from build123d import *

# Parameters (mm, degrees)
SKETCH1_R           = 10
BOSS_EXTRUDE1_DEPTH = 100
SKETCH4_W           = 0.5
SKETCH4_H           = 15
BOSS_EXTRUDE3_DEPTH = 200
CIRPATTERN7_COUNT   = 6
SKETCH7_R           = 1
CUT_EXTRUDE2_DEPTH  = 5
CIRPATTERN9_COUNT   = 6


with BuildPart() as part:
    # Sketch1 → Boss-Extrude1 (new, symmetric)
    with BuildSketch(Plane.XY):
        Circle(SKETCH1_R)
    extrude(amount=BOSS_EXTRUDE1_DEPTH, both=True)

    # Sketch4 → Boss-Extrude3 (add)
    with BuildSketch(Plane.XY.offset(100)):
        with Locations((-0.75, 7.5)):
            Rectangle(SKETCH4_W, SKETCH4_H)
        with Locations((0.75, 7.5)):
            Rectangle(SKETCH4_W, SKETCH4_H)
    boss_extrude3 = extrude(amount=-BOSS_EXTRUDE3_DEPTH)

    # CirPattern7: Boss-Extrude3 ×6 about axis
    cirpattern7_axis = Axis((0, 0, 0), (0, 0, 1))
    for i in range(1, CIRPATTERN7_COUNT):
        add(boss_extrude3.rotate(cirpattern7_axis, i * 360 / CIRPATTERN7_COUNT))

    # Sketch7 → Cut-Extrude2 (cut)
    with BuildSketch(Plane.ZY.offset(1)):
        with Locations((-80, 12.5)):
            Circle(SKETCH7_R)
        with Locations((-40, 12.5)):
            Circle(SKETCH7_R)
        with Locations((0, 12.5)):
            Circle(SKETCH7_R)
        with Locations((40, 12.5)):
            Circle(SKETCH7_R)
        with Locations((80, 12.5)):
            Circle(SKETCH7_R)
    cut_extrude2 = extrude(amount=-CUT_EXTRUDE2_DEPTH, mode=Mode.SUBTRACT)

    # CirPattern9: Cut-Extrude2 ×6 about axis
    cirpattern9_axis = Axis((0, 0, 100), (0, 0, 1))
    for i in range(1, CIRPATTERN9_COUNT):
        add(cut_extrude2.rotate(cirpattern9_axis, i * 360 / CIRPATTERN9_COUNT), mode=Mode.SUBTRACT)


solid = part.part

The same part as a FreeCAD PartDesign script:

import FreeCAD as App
import Part
import Sketcher
from FreeCAD import Vector


def add_polygon(sketch, points):
    """Adds a closed chain of lines whose ends are joined by coincident constraints."""
    first, n = sketch.GeometryCount, len(points)
    for a, b in zip(points, points[1:] + points[:1]):
        sketch.addGeometry(Part.LineSegment(App.Vector(*a, 0), App.Vector(*b, 0)), False)
    for i in range(n):
        sketch.addConstraint(Sketcher.Constraint("Coincident", first + i, 2, first + (i + 1) % n, 1))

doc = App.newDocument("Part")
params = doc.addObject("Spreadsheet::Sheet", "Params")
for row, (alias, value) in enumerate([
    ("sketch1_diameter", "20 mm"),
    ("pad1_length", "200 mm"),
    ("sketch2_height", "15 mm"),
    ("sketch2_width", "0.5 mm"),
    ("pad2_length", "200 mm"),
    ("sketch3_diameter", "2 mm"),
    ("pocket1_length", "5 mm"),
], start=1):
    params.set(f"A{row}", alias)
    params.set(f"B{row}", "=" + value)
    params.setAlias(f"B{row}", alias)

body = doc.addObject("PartDesign::Body", "Body")

# Sketch on XY plane
sketch1 = doc.addObject("Sketcher::SketchObject", "Sketch")
body.addObject(sketch1)
sketch1.AttachmentSupport = (doc.XY_Plane, [""])
sketch1.MapMode = "FlatFace"
sketch1.addGeometry(Part.Circle(Vector(0, 0, 0), Vector(0, 0, 1), 10), False)
sketch1.addConstraint(Sketcher.Constraint("Coincident", 0, 3, -1, 1))
sketch1.addConstraint(Sketcher.Constraint("Diameter", 0, 20.0))
sketch1.setExpression("Constraints[1]", "Params.sketch1_diameter")
pad1 = doc.addObject("PartDesign::Pad", "Pad")
body.addObject(pad1)
pad1.Profile = sketch1
pad1.setExpression("Length", "Params.pad1_length")
pad1.Midplane = True

# Sketch on XY plane
sketch2 = doc.addObject("Sketcher::SketchObject", "Sketch001")
body.addObject(sketch2)
sketch2.AttachmentSupport = (doc.XY_Plane, [""])
sketch2.MapMode = "FlatFace"
sketch2.AttachmentOffset = App.Placement(Vector(0, 0, 100), App.Rotation())
add_polygon(sketch2, [(-1, 15), (-1, 0), (-0.5, 0), (-0.5, 15)])  # lines 0-3
add_polygon(sketch2, [(0.5, 15), (0.5, 0), (1, 0), (1, 15)])  # lines 4-7
sketch2.addConstraint(Sketcher.Constraint("Vertical", 0))
sketch2.addConstraint(Sketcher.Constraint("Horizontal", 1))
sketch2.addConstraint(Sketcher.Constraint("Vertical", 2))
sketch2.addConstraint(Sketcher.Constraint("Horizontal", 3))
sketch2.addConstraint(Sketcher.Constraint("Vertical", 4))
sketch2.addConstraint(Sketcher.Constraint("Horizontal", 5))
sketch2.addConstraint(Sketcher.Constraint("Vertical", 6))
sketch2.addConstraint(Sketcher.Constraint("Horizontal", 7))
sketch2.addConstraint(Sketcher.Constraint("Symmetric", 1, 2, 4, 2, -1, 1))
sketch2.addConstraint(Sketcher.Constraint("Symmetric", 0, 2, 5, 2, -2))
sketch2.addConstraint(Sketcher.Constraint("Horizontal", 3, 2, 6, 2))
sketch2.addConstraint(Sketcher.Constraint("DistanceY", 0, 2, 0, 1, 15.0))
sketch2.addConstraint(Sketcher.Constraint("DistanceX", 1, 1, 1, 2, 0.5))
sketch2.addConstraint(Sketcher.Constraint("DistanceX", 0, 2, -1, 1, 1.0))
sketch2.setExpression("Constraints[19]", "Params.sketch2_height")
sketch2.setExpression("Constraints[20]", "Params.sketch2_width")
pad2 = doc.addObject("PartDesign::Pad", "Pad001")
body.addObject(pad2)
pad2.Profile = sketch2
pad2.setExpression("Length", "Params.pad2_length")
pad2.Reversed = True
doc.recompute()

polarpattern = doc.addObject("PartDesign::PolarPattern", "PolarPattern")
body.addObject(polarpattern)
polarpattern.Originals = [pad2]
polarpattern.Axis = (doc.Z_Axis, [""])
polarpattern.Angle = 360
polarpattern.Occurrences = 6
body.Tip = polarpattern

# Sketch on YZ plane
sketch3 = doc.addObject("Sketcher::SketchObject", "Sketch002")
body.addObject(sketch3)
sketch3.AttachmentSupport = (doc.YZ_Plane, [""])
sketch3.MapMode = "FlatFace"
sketch3.AttachmentOffset = App.Placement(Vector(0, 0, -1), App.Rotation())
sketch3.addGeometry(Part.Circle(Vector(12.5, -80, 0), Vector(0, 0, 1), 1), False)
sketch3.addGeometry(Part.Circle(Vector(12.5, -40, 0), Vector(0, 0, 1), 1), False)
sketch3.addGeometry(Part.Circle(Vector(12.5, 0, 0), Vector(0, 0, 1), 1), False)
sketch3.addGeometry(Part.Circle(Vector(12.5, 40, 0), Vector(0, 0, 1), 1), False)
sketch3.addGeometry(Part.Circle(Vector(12.5, 80, 0), Vector(0, 0, 1), 1), False)
sketch3.addConstraint(Sketcher.Constraint("Equal", 0, 1))
sketch3.addConstraint(Sketcher.Constraint("Equal", 1, 2))
sketch3.addConstraint(Sketcher.Constraint("Equal", 2, 3))
sketch3.addConstraint(Sketcher.Constraint("Equal", 3, 4))
sketch3.addConstraint(Sketcher.Constraint("Symmetric", 1, 3, 3, 3, -1))
sketch3.addConstraint(Sketcher.Constraint("Symmetric", 0, 3, 4, 3, -1))
sketch3.addConstraint(Sketcher.Constraint("PointOnObject", 2, 3, -1))
sketch3.addConstraint(Sketcher.Constraint("Vertical", 0, 3, 1, 3))
sketch3.addConstraint(Sketcher.Constraint("Vertical", 1, 3, 2, 3))
sketch3.addConstraint(Sketcher.Constraint("Diameter", 0, 2.0))
sketch3.addConstraint(Sketcher.Constraint("DistanceY", 0, 3, -1, 1, 80.0))
sketch3.addConstraint(Sketcher.Constraint("DistanceY", 1, 3, -1, 1, 40.0))
sketch3.addConstraint(Sketcher.Constraint("DistanceX", -1, 1, 0, 3, 12.5))
sketch3.setExpression("Constraints[9]", "Params.sketch3_diameter")
pocket1 = doc.addObject("PartDesign::Pocket", "Pocket")
body.addObject(pocket1)
pocket1.Profile = sketch3
pocket1.setExpression("Length", "Params.pocket1_length")
pocket1.Reversed = True
doc.recompute()

polarpattern2 = doc.addObject("PartDesign::PolarPattern", "PolarPattern001")
body.addObject(polarpattern2)
polarpattern2.Originals = [pocket1]
polarpattern2.Axis = (doc.Z_Axis, [""])
polarpattern2.Angle = 360
polarpattern2.Occurrences = 6
body.Tip = polarpattern2

doc.recompute()
